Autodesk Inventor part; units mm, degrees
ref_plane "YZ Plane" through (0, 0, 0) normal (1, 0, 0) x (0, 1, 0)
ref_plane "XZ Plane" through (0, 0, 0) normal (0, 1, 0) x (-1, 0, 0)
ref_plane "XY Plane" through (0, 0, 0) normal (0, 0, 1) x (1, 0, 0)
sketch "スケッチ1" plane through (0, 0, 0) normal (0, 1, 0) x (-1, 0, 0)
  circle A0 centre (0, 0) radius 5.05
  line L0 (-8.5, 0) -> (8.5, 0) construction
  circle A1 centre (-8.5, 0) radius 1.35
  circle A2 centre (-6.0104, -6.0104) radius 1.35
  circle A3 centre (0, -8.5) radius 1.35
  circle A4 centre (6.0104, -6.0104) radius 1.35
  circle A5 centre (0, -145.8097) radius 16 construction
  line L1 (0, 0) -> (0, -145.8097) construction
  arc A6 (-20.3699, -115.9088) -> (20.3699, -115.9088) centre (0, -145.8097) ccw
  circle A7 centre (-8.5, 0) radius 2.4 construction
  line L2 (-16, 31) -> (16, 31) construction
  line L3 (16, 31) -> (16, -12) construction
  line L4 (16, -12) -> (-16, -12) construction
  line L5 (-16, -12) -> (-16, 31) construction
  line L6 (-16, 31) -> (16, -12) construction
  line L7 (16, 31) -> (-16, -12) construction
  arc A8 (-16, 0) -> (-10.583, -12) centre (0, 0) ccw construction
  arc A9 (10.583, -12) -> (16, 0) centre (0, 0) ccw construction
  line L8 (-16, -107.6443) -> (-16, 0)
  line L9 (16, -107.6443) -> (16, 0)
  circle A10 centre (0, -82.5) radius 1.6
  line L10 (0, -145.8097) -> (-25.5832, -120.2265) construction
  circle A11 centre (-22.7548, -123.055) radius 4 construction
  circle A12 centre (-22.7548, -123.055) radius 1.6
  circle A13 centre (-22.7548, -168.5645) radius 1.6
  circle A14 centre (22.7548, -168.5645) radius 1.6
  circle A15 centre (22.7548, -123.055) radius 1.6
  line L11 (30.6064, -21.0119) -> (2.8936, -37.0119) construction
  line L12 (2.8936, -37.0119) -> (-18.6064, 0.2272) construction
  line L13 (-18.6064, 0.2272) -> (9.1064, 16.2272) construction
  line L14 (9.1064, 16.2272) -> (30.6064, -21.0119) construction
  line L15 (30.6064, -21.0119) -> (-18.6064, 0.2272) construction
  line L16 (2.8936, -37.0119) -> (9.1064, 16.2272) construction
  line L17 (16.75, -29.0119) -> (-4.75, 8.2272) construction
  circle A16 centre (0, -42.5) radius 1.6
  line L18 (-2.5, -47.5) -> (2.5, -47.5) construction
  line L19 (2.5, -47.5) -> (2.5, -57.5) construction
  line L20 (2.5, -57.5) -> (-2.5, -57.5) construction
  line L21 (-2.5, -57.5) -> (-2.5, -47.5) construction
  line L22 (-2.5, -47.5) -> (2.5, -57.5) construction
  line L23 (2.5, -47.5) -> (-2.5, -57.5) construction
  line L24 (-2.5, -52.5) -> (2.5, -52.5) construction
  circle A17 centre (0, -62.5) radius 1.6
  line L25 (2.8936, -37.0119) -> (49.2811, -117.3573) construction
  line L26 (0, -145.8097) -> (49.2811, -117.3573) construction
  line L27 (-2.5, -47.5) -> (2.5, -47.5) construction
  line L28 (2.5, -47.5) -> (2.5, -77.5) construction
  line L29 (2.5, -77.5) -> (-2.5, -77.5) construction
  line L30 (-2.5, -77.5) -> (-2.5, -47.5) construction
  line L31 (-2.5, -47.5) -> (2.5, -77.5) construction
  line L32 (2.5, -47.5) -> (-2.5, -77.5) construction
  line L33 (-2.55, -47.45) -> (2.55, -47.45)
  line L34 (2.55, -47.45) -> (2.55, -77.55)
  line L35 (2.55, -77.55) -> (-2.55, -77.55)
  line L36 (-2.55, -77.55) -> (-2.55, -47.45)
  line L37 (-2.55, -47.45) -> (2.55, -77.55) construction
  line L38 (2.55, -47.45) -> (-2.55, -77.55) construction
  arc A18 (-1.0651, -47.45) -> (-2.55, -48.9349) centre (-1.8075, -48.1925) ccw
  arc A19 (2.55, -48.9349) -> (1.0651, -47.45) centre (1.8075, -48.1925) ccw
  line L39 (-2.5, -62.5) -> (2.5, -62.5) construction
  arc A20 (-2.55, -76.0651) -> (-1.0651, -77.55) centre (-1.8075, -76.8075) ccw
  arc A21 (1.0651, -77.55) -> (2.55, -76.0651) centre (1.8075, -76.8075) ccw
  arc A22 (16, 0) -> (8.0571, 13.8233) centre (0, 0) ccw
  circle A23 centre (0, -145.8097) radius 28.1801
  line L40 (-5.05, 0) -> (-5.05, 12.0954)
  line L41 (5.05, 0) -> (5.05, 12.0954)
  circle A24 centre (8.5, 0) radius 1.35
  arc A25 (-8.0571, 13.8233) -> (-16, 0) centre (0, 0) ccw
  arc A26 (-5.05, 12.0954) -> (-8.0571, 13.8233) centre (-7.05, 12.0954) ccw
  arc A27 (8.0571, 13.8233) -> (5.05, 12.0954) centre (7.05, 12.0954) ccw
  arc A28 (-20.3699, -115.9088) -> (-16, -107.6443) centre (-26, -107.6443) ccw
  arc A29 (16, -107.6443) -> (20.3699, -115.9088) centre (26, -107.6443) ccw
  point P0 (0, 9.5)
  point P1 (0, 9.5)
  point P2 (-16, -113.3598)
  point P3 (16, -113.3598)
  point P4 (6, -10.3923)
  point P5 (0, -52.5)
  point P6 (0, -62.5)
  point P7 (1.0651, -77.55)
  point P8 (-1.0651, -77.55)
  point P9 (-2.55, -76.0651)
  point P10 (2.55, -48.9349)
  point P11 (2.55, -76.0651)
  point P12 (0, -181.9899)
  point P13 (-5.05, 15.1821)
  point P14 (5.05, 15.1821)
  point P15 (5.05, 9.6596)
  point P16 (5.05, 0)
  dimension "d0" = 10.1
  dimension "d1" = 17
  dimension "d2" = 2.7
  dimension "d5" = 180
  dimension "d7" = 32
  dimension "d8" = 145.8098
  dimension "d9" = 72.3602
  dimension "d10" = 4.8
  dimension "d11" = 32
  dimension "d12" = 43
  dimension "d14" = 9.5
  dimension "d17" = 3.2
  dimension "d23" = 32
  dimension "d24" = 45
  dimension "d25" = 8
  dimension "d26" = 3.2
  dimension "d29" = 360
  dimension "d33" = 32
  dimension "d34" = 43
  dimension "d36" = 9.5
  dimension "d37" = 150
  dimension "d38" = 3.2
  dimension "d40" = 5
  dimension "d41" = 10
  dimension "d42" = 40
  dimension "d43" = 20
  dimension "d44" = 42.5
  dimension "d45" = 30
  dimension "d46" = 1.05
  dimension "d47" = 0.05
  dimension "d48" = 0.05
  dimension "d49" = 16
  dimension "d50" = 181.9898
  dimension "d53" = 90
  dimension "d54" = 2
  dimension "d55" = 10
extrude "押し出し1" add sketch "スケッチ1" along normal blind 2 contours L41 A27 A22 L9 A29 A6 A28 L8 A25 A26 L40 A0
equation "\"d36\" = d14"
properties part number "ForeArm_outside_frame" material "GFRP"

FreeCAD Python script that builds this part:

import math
import FreeCAD as App
import Part
import Sketcher

V = App.Vector
Q = App.Units.Quantity

doc = App.newDocument("Part")
body = doc.addObject("PartDesign::Body", "Body")

# Sketch on XZ plane
sketch1 = doc.addObject("Sketcher::SketchObject", "Sketch")
body.addObject(sketch1)
sketch1.AttachmentSupport = (doc.XZ_Plane, [""])
sketch1.MapMode = "FlatFace"
sketch1.addGeometry([
    Part.LineSegment(V(-5, 12.1, 0), V(-5, 0, 0)),  # 0
    Part.ArcOfCircle(Part.Circle(V(0, 0, 0), V(0, 0, 1), 5), math.radians(180), math.radians(360)),  # 1
    Part.LineSegment(V(5, 0, 0), V(5, 12.1, 0)),  # 2
    Part.ArcOfCircle(Part.Circle(V(7, 12.1, 0), V(0, 0, 1), 2), math.radians(60), math.radians(180)),  # 3
    Part.ArcOfCircle(Part.Circle(V(0, 0, 0), V(0, 0, 1), 16), math.radians(0), math.radians(60)),  # 4
    Part.LineSegment(V(16, 0, 0), V(16, -107.6, 0)),  # 5
    Part.ArcOfCircle(Part.Circle(V(26, -107.6, 0), V(0, 0, 1), 10), math.radians(180), math.radians(236)),  # 6
    Part.ArcOfCircle(Part.Circle(V(0, -145.8, 0), V(0, 0, 1), 36.2), math.radians(124), math.radians(416)),  # 7
    Part.ArcOfCircle(Part.Circle(V(-26, -107.6, 0), V(0, 0, 1), 10), math.radians(-56), math.radians(0)),  # 8
    Part.LineSegment(V(-16, -107.6, 0), V(-16, 0, 0)),  # 9
    Part.ArcOfCircle(Part.Circle(V(0, 0, 0), V(0, 0, 1), 16), math.radians(120), math.radians(180)),  # 10
    Part.ArcOfCircle(Part.Circle(V(-7, 12.1, 0), V(0, 0, 1), 2), math.radians(0), math.radians(120)),  # 11
    Part.Circle(V(22.8, -168.6, 0), V(0, 0, 1), 1.6),  # 12
    Part.Circle(V(0, -145.8, 0), V(0, 0, 1), 28.2),  # 13
    Part.Circle(V(22.8, -123.1, 0), V(0, 0, 1), 1.6),  # 14
    Part.Circle(V(-22.8, -168.6, 0), V(0, 0, 1), 1.6),  # 15
    Part.Circle(V(-22.8, -123.1, 0), V(0, 0, 1), 1.6),  # 16
    Part.Circle(V(0, -82.5, 0), V(0, 0, 1), 1.6),  # 17
    Part.ArcOfCircle(Part.Circle(V(1.8, -48.2, 0), V(0, 0, 1), 1), math.radians(-45), math.radians(135)),  # 18
    Part.LineSegment(V(1.1, -47.5, 0), V(-1.1, -47.5, 0)),  # 19
    Part.ArcOfCircle(Part.Circle(V(-1.8, -48.2, 0), V(0, 0, 1), 1), math.radians(45), math.radians(225)),  # 20
    Part.LineSegment(V(-2.5, -48.9, 0), V(-2.5, -76.1, 0)),  # 21
    Part.ArcOfCircle(Part.Circle(V(-1.8, -76.8, 0), V(0, 0, 1), 1), math.radians(135), math.radians(315)),  # 22
    Part.LineSegment(V(-1.1, -77.5, 0), V(1.1, -77.5, 0)),  # 23
    Part.ArcOfCircle(Part.Circle(V(1.8, -76.8, 0), V(0, 0, 1), 1), math.radians(-135), math.radians(45)),  # 24
    Part.LineSegment(V(2.5, -76.1, 0), V(2.5, -48.9, 0)),  # 25
    Part.Circle(V(0, -42.5, 0), V(0, 0, 1), 1.6),  # 26
    Part.Circle(V(6, -6, 0), V(0, 0, 1), 1.4),  # 27
    Part.Circle(V(8.5, 0, 0), V(0, 0, 1), 1.4),  # 28
    Part.Circle(V(0, -8.5, 0), V(0, 0, 1), 1.4),  # 29
    Part.Circle(V(-6, -6, 0), V(0, 0, 1), 1.4),  # 30
    Part.Circle(V(-8.5, 0, 0), V(0, 0, 1), 1.4),  # 31
], False)
sketch1.addConstraint([
    Sketcher.Constraint("Tangent", 0, 2, 1, 1),
    Sketcher.Constraint("Tangent", 1, 2, 2, 1),
    Sketcher.Constraint("Tangent", 2, 2, 3, 2),
    Sketcher.Constraint("Tangent", 3, 1, 4, 2),
    Sketcher.Constraint("Tangent", 4, 1, 5, 1),
    Sketcher.Constraint("Tangent", 5, 2, 6, 1),
    Sketcher.Constraint("Tangent", 6, 2, 7, 2),
    Sketcher.Constraint("Tangent", 7, 1, 8, 1),
    Sketcher.Constraint("Tangent", 8, 2, 9, 1),
    Sketcher.Constraint("Tangent", 9, 2, 10, 2),
    Sketcher.Constraint("Tangent", 10, 1, 11, 2),
    Sketcher.Constraint("Tangent", 11, 1, 0, 1),
    Sketcher.Constraint("Coincident", 18, 2, 19, 1),
    Sketcher.Constraint("Coincident", 19, 2, 20, 1),
    Sketcher.Constraint("Coincident", 20, 2, 21, 1),
    Sketcher.Constraint("Coincident", 21, 2, 22, 1),
    Sketcher.Constraint("Coincident", 22, 2, 23, 1),
    Sketcher.Constraint("Coincident", 23, 2, 24, 1),
    Sketcher.Constraint("Coincident", 24, 2, 25, 1),
    Sketcher.Constraint("Coincident", 25, 2, 18, 1),
    Sketcher.Constraint("Vertical", 0),
    Sketcher.Constraint("Vertical", 2),
    Sketcher.Constraint("Vertical", 5),
    Sketcher.Constraint("Vertical", 9),
    Sketcher.Constraint("Horizontal", 19),
    Sketcher.Constraint("Vertical", 21),
    Sketcher.Constraint("Horizontal", 23),
    Sketcher.Constraint("Vertical", 25),
    Sketcher.Constraint("Coincident", 1, 3, -1, 1),
    Sketcher.Constraint("Coincident", 4, 3, -1, 1),
    Sketcher.Constraint("Coincident", 10, 3, -1, 1),
    Sketcher.Constraint("Coincident", 13, 3, 7, 3),
    Sketcher.Constraint("Equal", 6, 8),
    Sketcher.Constraint("Equal", 4, 10),
    Sketcher.Constraint("Equal", 3, 11),
    Sketcher.Constraint("Equal", 12, 14),
    Sketcher.Constraint("Equal", 14, 15),
    Sketcher.Constraint("Equal", 15, 16),
    Sketcher.Constraint("Equal", 16, 17),
    Sketcher.Constraint("Equal", 18, 20),
    Sketcher.Constraint("Equal", 20, 22),
    Sketcher.Constraint("Equal", 22, 24),
    Sketcher.Constraint("Equal", 17, 26),
    Sketcher.Constraint("Equal", 27, 28),
    Sketcher.Constraint("Equal", 28, 29),
    Sketcher.Constraint("Equal", 29, 30),
    Sketcher.Constraint("Equal", 30, 31),
    Sketcher.Constraint("Symmetric", 28, 3, 31, 3, -1, 1),
    Sketcher.Constraint("Symmetric", 12, 3, 15, 3, -2),
    Sketcher.Constraint("Symmetric", 14, 3, 16, 3, -2),
    Sketcher.Constraint("Symmetric", 18, 3, 20, 3, -2),
    Sketcher.Constraint("Symmetric", 22, 3, 24, 3, -2),
    Sketcher.Constraint("Symmetric", 27, 3, 30, 3, -2),
    Sketcher.Constraint("PointOnObject", 7, 3, -2),
    Sketcher.Constraint("PointOnObject", 17, 3, -2),
    Sketcher.Constraint("PointOnObject", 26, 3, -2),
    Sketcher.Constraint("PointOnObject", 28, 3, -1),
    Sketcher.Constraint("PointOnObject", 29, 3, -2),
    Sketcher.Constraint("Horizontal", 21, 2, 24, 2),
    Sketcher.Constraint("Vertical", 12, 3, 14, 3),
    Sketcher.Constraint("Vertical", 20, 3, 22, 3),
    Sketcher.Constraint("Vertical", 19, 2, 22, 2),
    Sketcher.Constraint("Radius", 3, Q("2 mm")),
    Sketcher.Constraint("Radius", 4, Q("16 mm")),
    Sketcher.Constraint("Radius", 6, Q("10 mm")),
    Sketcher.Constraint("Diameter", 12, Q("3.2 mm")),
    Sketcher.Constraint("Diameter", 27, Q("2.7 mm")),
    Sketcher.Constraint("Radius", 1, Q("5.05 mm")),
    Sketcher.Constraint("Radius", 7, Q("36.18 mm")),
    Sketcher.Constraint("Radius", 18, Q("1.05 mm")),
    Sketcher.Constraint("DistanceY", 17, 3, 26, 3, Q("40 mm")),
    Sketcher.Constraint("DistanceY", 26, 3, -1, 1, Q("42.5 mm")),
    Sketcher.Constraint("Diameter", 13, Q("56.3602 mm")),
    Sketcher.Constraint("DistanceY", 7, 3, -1, 1, Q("145.8097 mm")),
    Sketcher.Constraint("DistanceX", -1, 1, 28, 3, Q("8.5 mm")),
    Sketcher.Constraint("DistanceY", 29, 3, -1, 1, Q("8.5 mm")),
    Sketcher.Constraint("DistanceX", 21, 2, 24, 2, Q("5.1 mm")),
    Sketcher.Constraint("DistanceY", 18, 2, -1, 1, Q("47.45 mm")),
    Sketcher.Constraint("DistanceY", 22, 2, -1, 1, Q("77.55 mm")),
    Sketcher.Constraint("DistanceX", 19, 2, 19, 1, Q("2.1302 mm")),
    Sketcher.Constraint("DistanceY", 14, 3, -1, 1, Q("123.055 mm")),
    Sketcher.Constraint("DistanceY", 18, 3, 3, 3, Q("60.288 mm")),
    Sketcher.Constraint("DistanceX", 6, 2, 14, 3, Q("2.385 mm")),
    Sketcher.Constraint("DistanceY", 12, 3, -1, 1, Q("168.5645 mm")),
    Sketcher.Constraint("DistanceX", -1, 1, 27, 3, Q("6.0104 mm")),
    Sketcher.Constraint("DistanceY", 27, 3, -1, 1, Q("6.0104 mm")),
])
pad1 = doc.addObject("PartDesign::Pad", "Pad")
body.addObject(pad1)
pad1.Profile = sketch1
pad1.Length = 2
pad1.Reversed = True

doc.recompute()
